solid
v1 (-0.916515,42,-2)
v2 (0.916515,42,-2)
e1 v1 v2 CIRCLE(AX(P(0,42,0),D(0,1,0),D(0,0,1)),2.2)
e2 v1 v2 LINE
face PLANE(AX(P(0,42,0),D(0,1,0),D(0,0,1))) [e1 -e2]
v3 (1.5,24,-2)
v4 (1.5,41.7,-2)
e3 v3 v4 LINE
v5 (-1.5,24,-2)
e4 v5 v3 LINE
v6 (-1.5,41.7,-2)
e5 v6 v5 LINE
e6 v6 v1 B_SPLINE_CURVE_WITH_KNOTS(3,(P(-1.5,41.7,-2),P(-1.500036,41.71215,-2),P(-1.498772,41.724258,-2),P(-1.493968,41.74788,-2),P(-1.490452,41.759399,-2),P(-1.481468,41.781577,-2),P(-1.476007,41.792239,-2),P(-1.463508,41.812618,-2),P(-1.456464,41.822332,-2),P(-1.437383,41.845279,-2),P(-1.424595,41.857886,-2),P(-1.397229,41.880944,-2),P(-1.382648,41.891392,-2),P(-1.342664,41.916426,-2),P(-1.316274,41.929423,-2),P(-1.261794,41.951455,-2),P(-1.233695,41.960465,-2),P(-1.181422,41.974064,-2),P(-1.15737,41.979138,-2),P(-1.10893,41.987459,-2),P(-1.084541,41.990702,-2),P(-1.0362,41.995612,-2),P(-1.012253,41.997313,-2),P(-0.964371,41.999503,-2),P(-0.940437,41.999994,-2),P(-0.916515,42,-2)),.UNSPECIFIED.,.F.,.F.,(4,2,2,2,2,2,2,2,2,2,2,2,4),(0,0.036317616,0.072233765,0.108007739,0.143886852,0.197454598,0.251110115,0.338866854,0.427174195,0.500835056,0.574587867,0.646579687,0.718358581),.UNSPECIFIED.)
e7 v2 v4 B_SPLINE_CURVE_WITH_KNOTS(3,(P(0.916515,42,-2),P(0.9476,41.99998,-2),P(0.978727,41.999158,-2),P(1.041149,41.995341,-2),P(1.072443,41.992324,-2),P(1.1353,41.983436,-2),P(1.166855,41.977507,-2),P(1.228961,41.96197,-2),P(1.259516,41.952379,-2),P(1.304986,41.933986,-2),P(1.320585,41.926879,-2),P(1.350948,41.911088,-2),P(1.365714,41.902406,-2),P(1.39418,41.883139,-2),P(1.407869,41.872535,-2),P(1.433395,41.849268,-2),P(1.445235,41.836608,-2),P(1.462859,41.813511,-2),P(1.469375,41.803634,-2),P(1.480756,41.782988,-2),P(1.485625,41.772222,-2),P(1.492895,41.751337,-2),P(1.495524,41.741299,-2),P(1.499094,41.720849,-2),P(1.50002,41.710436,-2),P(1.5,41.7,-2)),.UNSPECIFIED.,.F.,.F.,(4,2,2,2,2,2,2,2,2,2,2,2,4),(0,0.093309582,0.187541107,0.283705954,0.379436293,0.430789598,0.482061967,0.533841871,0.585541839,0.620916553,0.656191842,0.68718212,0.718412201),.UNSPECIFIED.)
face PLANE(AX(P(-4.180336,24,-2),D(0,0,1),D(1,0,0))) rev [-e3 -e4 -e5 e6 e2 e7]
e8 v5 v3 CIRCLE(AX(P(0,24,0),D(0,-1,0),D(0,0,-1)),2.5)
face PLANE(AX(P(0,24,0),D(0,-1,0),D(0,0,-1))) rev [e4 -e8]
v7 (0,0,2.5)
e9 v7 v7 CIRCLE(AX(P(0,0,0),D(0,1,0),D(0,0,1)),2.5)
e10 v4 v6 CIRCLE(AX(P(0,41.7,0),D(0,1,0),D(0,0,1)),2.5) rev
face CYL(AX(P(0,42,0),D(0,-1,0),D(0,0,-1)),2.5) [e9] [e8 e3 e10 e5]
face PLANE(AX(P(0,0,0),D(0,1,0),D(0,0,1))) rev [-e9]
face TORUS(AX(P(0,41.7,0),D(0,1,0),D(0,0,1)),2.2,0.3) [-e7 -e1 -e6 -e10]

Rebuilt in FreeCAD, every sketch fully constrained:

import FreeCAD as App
import Part
import Sketcher
from FreeCAD import Vector
Q = App.Units.Quantity


def edges_at(feature, points):
    """Names of the edges that pass closest to the given points."""
    edges = feature.Shape.Edges
    near = lambda p: min(range(len(edges)), key=lambda i: edges[i].distToShape(Part.Vertex(*p))[0])
    return sorted({f"Edge{near(p) + 1}" for p in points})

doc = App.newDocument("Part")
body = doc.addObject("PartDesign::Body", "Body")

sketch1 = body.newObject("Sketcher::SketchObject", "Sketch")
sketch1.AttachmentSupport = (doc.getObject("XZ_Plane"), [""])
sketch1.MapMode = "FlatFace"
sketch1.addGeometry(Part.Circle(Vector(0, 0, 0), Vector(0, 0, 1), 2.5), False)
sketch1.addConstraint([
    Sketcher.Constraint("Coincident", 0, 3, -1, 1),
    Sketcher.Constraint("Diameter", 0, Q("5 mm")),
])
pad1 = body.newObject("PartDesign::Pad", "Pad")
pad1.Profile = sketch1
pad1.Length = 42
pad1.Reversed = True

sketch2 = body.newObject("Sketcher::SketchObject", "Sketch001")
sketch2.AttachmentSupport = (doc.getObject("XZ_Plane"), [""])
sketch2.MapMode = "FlatFace"
sketch2.AttachmentOffset = App.Placement(Vector(0, 0, -42), App.Rotation())
sketch2.addGeometry([
    Part.LineSegment(Vector(-4.2, -4.5, 0), Vector(-4.2, -2, 0)),
    Part.LineSegment(Vector(-4.2, -2, 0), Vector(4.1, -2, 0)),
    Part.LineSegment(Vector(4.1, -2, 0), Vector(4.1, -4.5, 0)),
    Part.LineSegment(Vector(4.1, -4.5, 0), Vector(-4.2, -4.5, 0)),
], False)
sketch2.addConstraint([
    Sketcher.Constraint("Coincident", 0, 2, 1, 1),
    Sketcher.Constraint("Coincident", 1, 2, 2, 1),
    Sketcher.Constraint("Coincident", 2, 2, 3, 1),
    Sketcher.Constraint("Coincident", 3, 2, 0, 1),
    Sketcher.Constraint("Vertical", 0),
    Sketcher.Constraint("Horizontal", 1),
    Sketcher.Constraint("Vertical", 2),
    Sketcher.Constraint("Horizontal", 3),
    Sketcher.Constraint("DistanceY", 0, 2, -1, 1, Q("2 mm")),
    Sketcher.Constraint("DistanceX", 1, 1, 1, 2, Q("8.23165 mm")),
    Sketcher.Constraint("DistanceY", 0, 1, 0, 2, Q("2.477236 mm")),
    Sketcher.Constraint("DistanceX", 0, 2, -1, 1, Q("4.180336 mm")),
])
pocket1 = body.newObject("PartDesign::Pocket", "Pocket")
pocket1.Profile = sketch2
pocket1.Length = 18
pocket1.Reversed = True
doc.recompute()

fillet = body.newObject("PartDesign::Fillet", "Fillet")
fillet.Base = (pocket1, edges_at(pocket1, [(0, 42, 2.5)]))
fillet.Radius = 0.3

doc.recompute()
